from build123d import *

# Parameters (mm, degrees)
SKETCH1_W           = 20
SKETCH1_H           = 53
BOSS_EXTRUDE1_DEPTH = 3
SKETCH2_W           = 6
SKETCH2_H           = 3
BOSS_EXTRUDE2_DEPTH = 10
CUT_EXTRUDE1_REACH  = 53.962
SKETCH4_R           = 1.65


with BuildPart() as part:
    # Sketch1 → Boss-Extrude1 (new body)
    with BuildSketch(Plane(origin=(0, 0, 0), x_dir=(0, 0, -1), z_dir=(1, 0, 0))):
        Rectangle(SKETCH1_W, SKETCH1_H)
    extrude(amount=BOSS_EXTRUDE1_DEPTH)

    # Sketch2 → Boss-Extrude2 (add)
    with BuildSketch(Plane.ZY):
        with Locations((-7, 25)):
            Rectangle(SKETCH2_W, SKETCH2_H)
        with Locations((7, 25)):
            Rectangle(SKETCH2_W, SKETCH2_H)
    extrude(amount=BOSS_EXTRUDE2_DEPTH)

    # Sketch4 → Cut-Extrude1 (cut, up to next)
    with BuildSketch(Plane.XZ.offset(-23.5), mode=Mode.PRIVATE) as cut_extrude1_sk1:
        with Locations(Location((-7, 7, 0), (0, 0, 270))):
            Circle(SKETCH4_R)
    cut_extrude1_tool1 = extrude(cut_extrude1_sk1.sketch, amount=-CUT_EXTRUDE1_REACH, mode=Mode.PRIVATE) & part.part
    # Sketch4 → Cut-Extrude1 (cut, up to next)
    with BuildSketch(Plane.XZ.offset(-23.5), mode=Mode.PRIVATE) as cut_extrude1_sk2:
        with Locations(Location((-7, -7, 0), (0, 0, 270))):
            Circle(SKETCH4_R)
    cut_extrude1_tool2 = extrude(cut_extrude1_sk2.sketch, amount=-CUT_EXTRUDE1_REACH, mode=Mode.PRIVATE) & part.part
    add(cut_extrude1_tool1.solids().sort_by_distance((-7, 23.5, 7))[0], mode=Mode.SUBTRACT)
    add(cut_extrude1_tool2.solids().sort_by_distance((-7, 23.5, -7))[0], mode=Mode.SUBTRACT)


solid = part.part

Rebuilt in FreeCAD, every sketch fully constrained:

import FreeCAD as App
import Part
import Sketcher

doc = App.newDocument("Part")
body = doc.addObject("PartDesign::Body", "Body")

# Sketch on YZ plane
sketch1 = body.newObject("Sketcher::SketchObject", "Sketch")
sketch1.AttachmentSupport = (doc.getObject("YZ_Plane"), [""])
sketch1.MapMode = "FlatFace"
sketch1.addGeometry([
    Part.LineSegment(App.Vector(26, 10, 0), App.Vector(-26, 10, 0)),
    Part.LineSegment(App.Vector(-26, 10, 0), App.Vector(-26, -10, 0)),
    Part.LineSegment(App.Vector(-26, -10, 0), App.Vector(26, -10, 0)),
    Part.LineSegment(App.Vector(26, -10, 0), App.Vector(26, 10, 0)),
], False)
sketch1.addConstraint([
    Sketcher.Constraint("Coincident", 0, 2, 1, 1),
    Sketcher.Constraint("Coincident", 1, 2, 2, 1),
    Sketcher.Constraint("Coincident", 2, 2, 3, 1),
    Sketcher.Constraint("Coincident", 3, 2, 0, 1),
    Sketcher.Constraint("Horizontal", 0),
    Sketcher.Constraint("Vertical", 1),
    Sketcher.Constraint("Horizontal", 2),
    Sketcher.Constraint("Vertical", 3),
    Sketcher.Constraint("Symmetric", 0, 2, 2, 2, -1, 1),
    Sketcher.Constraint("DistanceX", 0, 2, 0, 1, 53.0),
    Sketcher.Constraint("DistanceY", 1, 2, 1, 1, 20.0),
])
pad1 = body.newObject("PartDesign::Pad", "Pad")
pad1.Profile = sketch1
pad1.Length = 3

# Sketch on YZ plane
sketch2 = body.newObject("Sketcher::SketchObject", "Sketch001")
sketch2.AttachmentSupport = (doc.getObject("YZ_Plane"), [""])
sketch2.MapMode = "FlatFace"
sketch2.addGeometry([
    Part.LineSegment(App.Vector(26.5, -10, 0), App.Vector(23.5, -10, 0)),  # 0
    Part.LineSegment(App.Vector(23.5, -10, 0), App.Vector(23.5, -4, 0)),  # 1
    Part.LineSegment(App.Vector(23.5, -4, 0), App.Vector(26.5, -4, 0)),  # 2
    Part.LineSegment(App.Vector(26.5, -4, 0), App.Vector(26.5, -10, 0)),  # 3
    Part.LineSegment(App.Vector(26.5, 4, 0), App.Vector(23.5, 4, 0)),  # 4
    Part.LineSegment(App.Vector(23.5, 4, 0), App.Vector(23.5, 10, 0)),  # 5
    Part.LineSegment(App.Vector(23.5, 10, 0), App.Vector(26.5, 10, 0)),  # 6
    Part.LineSegment(App.Vector(26.5, 10, 0), App.Vector(26.5, 4, 0)),  # 7
], False)
sketch2.addConstraint([
    Sketcher.Constraint("Coincident", 0, 2, 1, 1),
    Sketcher.Constraint("Coincident", 1, 2, 2, 1),
    Sketcher.Constraint("Coincident", 2, 2, 3, 1),
    Sketcher.Constraint("Coincident", 3, 2, 0, 1),
    Sketcher.Constraint("Coincident", 4, 2, 5, 1),
    Sketcher.Constraint("Coincident", 5, 2, 6, 1),
    Sketcher.Constraint("Coincident", 6, 2, 7, 1),
    Sketcher.Constraint("Coincident", 7, 2, 4, 1),
    Sketcher.Constraint("Horizontal", 0),
    Sketcher.Constraint("Vertical", 1),
    Sketcher.Constraint("Horizontal", 2),
    Sketcher.Constraint("Vertical", 3),
    Sketcher.Constraint("Horizontal", 4),
    Sketcher.Constraint("Vertical", 5),
    Sketcher.Constraint("Horizontal", 6),
    Sketcher.Constraint("Vertical", 7),
    Sketcher.Constraint("Symmetric", 1, 2, 4, 2, -1),
    Sketcher.Constraint("Symmetric", 3, 2, 6, 2, -1),
    Sketcher.Constraint("DistanceX", 0, 2, 0, 1, 3.0),
    Sketcher.Constraint("DistanceY", 1, 1, 1, 2, 6.0),
    Sketcher.Constraint("DistanceY", 0, 2, -1, 1, 10.0),
    Sketcher.Constraint("DistanceX", -1, 1, 0, 2, 23.5),
])
pad2 = body.newObject("PartDesign::Pad", "Pad001")
pad2.Profile = sketch2
pad2.Length = 10
pad2.Reversed = True

# Sketch on XZ plane
sketch3 = body.newObject("Sketcher::SketchObject", "Sketch002")
sketch3.AttachmentSupport = (doc.getObject("XZ_Plane"), [""])
sketch3.MapMode = "FlatFace"
sketch3.AttachmentOffset = App.Placement(App.Vector(0, 0, -23.5), App.Rotation())
sketch3.addGeometry(Part.Circle(App.Vector(-7, 7, 0), App.Vector(0, 0, 1), 1.6), False)
sketch3.addConstraint([
    Sketcher.Constraint("Diameter", 0, 3.3),
    Sketcher.Constraint("DistanceX", 0, 3, -1, 1, 7.0),
    Sketcher.Constraint("DistanceY", -1, 1, 0, 3, 7.0),
])
pocket1 = body.newObject("PartDesign::Pocket", "Pocket")
pocket1.Profile = sketch3
pocket1.Type = "UpToFirst"

# Sketch on XZ plane
sketch4 = body.newObject("Sketcher::SketchObject", "Sketch003")
sketch4.AttachmentSupport = (doc.getObject("XZ_Plane"), [""])
sketch4.MapMode = "FlatFace"
sketch4.AttachmentOffset = App.Placement(App.Vector(0, 0, -23.5), App.Rotation())
sketch4.addGeometry(Part.Circle(App.Vector(-7, -7, 0), App.Vector(0, 0, 1), 1.6), False)
sketch4.addConstraint([
    Sketcher.Constraint("Diameter", 0, 3.3),
    Sketcher.Constraint("DistanceX", 0, 3, -1, 1, 7.0),
    Sketcher.Constraint("DistanceY", 0, 3, -1, 1, 7.0),
])
pocket2 = body.newObject("PartDesign::Pocket", "Pocket001")
pocket2.Profile = sketch4
pocket2.Type = "UpToFirst"

doc.recompute()
